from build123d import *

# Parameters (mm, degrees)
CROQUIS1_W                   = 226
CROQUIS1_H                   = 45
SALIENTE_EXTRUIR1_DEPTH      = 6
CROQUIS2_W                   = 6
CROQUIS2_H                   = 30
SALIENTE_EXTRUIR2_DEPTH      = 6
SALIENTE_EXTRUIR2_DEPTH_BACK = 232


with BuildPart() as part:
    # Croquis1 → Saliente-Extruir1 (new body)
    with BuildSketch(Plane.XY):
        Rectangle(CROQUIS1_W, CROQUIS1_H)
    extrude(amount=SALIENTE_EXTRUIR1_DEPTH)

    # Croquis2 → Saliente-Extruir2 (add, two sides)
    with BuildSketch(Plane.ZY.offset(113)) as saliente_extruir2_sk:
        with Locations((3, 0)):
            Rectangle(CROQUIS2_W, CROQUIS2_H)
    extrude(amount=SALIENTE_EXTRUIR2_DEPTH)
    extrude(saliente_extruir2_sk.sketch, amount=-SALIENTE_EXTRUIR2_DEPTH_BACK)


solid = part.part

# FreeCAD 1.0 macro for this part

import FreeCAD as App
import Part
import Sketcher
from FreeCAD import Vector


def add_polygon(sketch, points):
    """Adds a closed chain of lines whose ends are joined by coincident constraints."""
    first, n = sketch.GeometryCount, len(points)
    for a, b in zip(points, points[1:] + points[:1]):
        sketch.addGeometry(Part.LineSegment(App.Vector(*a, 0), App.Vector(*b, 0)), False)
    for i in range(n):
        sketch.addConstraint(Sketcher.Constraint("Coincident", first + i, 2, first + (i + 1) % n, 1))

doc = App.newDocument("Part")
body = doc.addObject("PartDesign::Body", "Body")

sketch1 = body.newObject("Sketcher::SketchObject", "Sketch")
sketch1.AttachmentSupport = (doc.getObject("XY_Plane"), [""])
sketch1.MapMode = "FlatFace"
add_polygon(sketch1, [(-113, 22.5), (-113, -22.5), (113, -22.5), (113, 22.5)])
sketch1.addConstraint([
    Sketcher.Constraint("Vertical", 0),
    Sketcher.Constraint("Horizontal", 1),
    Sketcher.Constraint("Vertical", 2),
    Sketcher.Constraint("Horizontal", 3),
    Sketcher.Constraint("Symmetric", 0, 2, 2, 2, -1, 1),
    Sketcher.Constraint("DistanceX", 1, 1, 1, 2, 226.0),
    Sketcher.Constraint("DistanceY", 0, 2, 0, 1, 45.0),
])
pad1 = body.newObject("PartDesign::Pad", "Pad")
pad1.Profile = sketch1
pad1.Length = 6

sketch2 = body.newObject("Sketcher::SketchObject", "Sketch001")
sketch2.AttachmentSupport = (doc.getObject("YZ_Plane"), [""])
sketch2.MapMode = "FlatFace"
sketch2.AttachmentOffset = App.Placement(Vector(0, 0, -113), App.Rotation())
add_polygon(sketch2, [(15, 0), (-15, 0), (-15, 6), (15, 6)])
sketch2.addConstraint([
    Sketcher.Constraint("Horizontal", 0),
    Sketcher.Constraint("Vertical", 1),
    Sketcher.Constraint("Horizontal", 2),
    Sketcher.Constraint("Vertical", 3),
    Sketcher.Constraint("Symmetric", 0, 2, 3, 2, -1, 1),
    Sketcher.Constraint("DistanceX", 0, 2, 0, 1, 30.0),
    Sketcher.Constraint("DistanceY", 1, 1, 1, 2, 6.0),
])
pad2 = body.newObject("PartDesign::Pad", "Pad001")
pad2.Profile = sketch2
pad2.Type = "TwoLengths"
pad2.Length = 6
pad2.Length2 = 232
pad2.Reversed = True

doc.recompute()
